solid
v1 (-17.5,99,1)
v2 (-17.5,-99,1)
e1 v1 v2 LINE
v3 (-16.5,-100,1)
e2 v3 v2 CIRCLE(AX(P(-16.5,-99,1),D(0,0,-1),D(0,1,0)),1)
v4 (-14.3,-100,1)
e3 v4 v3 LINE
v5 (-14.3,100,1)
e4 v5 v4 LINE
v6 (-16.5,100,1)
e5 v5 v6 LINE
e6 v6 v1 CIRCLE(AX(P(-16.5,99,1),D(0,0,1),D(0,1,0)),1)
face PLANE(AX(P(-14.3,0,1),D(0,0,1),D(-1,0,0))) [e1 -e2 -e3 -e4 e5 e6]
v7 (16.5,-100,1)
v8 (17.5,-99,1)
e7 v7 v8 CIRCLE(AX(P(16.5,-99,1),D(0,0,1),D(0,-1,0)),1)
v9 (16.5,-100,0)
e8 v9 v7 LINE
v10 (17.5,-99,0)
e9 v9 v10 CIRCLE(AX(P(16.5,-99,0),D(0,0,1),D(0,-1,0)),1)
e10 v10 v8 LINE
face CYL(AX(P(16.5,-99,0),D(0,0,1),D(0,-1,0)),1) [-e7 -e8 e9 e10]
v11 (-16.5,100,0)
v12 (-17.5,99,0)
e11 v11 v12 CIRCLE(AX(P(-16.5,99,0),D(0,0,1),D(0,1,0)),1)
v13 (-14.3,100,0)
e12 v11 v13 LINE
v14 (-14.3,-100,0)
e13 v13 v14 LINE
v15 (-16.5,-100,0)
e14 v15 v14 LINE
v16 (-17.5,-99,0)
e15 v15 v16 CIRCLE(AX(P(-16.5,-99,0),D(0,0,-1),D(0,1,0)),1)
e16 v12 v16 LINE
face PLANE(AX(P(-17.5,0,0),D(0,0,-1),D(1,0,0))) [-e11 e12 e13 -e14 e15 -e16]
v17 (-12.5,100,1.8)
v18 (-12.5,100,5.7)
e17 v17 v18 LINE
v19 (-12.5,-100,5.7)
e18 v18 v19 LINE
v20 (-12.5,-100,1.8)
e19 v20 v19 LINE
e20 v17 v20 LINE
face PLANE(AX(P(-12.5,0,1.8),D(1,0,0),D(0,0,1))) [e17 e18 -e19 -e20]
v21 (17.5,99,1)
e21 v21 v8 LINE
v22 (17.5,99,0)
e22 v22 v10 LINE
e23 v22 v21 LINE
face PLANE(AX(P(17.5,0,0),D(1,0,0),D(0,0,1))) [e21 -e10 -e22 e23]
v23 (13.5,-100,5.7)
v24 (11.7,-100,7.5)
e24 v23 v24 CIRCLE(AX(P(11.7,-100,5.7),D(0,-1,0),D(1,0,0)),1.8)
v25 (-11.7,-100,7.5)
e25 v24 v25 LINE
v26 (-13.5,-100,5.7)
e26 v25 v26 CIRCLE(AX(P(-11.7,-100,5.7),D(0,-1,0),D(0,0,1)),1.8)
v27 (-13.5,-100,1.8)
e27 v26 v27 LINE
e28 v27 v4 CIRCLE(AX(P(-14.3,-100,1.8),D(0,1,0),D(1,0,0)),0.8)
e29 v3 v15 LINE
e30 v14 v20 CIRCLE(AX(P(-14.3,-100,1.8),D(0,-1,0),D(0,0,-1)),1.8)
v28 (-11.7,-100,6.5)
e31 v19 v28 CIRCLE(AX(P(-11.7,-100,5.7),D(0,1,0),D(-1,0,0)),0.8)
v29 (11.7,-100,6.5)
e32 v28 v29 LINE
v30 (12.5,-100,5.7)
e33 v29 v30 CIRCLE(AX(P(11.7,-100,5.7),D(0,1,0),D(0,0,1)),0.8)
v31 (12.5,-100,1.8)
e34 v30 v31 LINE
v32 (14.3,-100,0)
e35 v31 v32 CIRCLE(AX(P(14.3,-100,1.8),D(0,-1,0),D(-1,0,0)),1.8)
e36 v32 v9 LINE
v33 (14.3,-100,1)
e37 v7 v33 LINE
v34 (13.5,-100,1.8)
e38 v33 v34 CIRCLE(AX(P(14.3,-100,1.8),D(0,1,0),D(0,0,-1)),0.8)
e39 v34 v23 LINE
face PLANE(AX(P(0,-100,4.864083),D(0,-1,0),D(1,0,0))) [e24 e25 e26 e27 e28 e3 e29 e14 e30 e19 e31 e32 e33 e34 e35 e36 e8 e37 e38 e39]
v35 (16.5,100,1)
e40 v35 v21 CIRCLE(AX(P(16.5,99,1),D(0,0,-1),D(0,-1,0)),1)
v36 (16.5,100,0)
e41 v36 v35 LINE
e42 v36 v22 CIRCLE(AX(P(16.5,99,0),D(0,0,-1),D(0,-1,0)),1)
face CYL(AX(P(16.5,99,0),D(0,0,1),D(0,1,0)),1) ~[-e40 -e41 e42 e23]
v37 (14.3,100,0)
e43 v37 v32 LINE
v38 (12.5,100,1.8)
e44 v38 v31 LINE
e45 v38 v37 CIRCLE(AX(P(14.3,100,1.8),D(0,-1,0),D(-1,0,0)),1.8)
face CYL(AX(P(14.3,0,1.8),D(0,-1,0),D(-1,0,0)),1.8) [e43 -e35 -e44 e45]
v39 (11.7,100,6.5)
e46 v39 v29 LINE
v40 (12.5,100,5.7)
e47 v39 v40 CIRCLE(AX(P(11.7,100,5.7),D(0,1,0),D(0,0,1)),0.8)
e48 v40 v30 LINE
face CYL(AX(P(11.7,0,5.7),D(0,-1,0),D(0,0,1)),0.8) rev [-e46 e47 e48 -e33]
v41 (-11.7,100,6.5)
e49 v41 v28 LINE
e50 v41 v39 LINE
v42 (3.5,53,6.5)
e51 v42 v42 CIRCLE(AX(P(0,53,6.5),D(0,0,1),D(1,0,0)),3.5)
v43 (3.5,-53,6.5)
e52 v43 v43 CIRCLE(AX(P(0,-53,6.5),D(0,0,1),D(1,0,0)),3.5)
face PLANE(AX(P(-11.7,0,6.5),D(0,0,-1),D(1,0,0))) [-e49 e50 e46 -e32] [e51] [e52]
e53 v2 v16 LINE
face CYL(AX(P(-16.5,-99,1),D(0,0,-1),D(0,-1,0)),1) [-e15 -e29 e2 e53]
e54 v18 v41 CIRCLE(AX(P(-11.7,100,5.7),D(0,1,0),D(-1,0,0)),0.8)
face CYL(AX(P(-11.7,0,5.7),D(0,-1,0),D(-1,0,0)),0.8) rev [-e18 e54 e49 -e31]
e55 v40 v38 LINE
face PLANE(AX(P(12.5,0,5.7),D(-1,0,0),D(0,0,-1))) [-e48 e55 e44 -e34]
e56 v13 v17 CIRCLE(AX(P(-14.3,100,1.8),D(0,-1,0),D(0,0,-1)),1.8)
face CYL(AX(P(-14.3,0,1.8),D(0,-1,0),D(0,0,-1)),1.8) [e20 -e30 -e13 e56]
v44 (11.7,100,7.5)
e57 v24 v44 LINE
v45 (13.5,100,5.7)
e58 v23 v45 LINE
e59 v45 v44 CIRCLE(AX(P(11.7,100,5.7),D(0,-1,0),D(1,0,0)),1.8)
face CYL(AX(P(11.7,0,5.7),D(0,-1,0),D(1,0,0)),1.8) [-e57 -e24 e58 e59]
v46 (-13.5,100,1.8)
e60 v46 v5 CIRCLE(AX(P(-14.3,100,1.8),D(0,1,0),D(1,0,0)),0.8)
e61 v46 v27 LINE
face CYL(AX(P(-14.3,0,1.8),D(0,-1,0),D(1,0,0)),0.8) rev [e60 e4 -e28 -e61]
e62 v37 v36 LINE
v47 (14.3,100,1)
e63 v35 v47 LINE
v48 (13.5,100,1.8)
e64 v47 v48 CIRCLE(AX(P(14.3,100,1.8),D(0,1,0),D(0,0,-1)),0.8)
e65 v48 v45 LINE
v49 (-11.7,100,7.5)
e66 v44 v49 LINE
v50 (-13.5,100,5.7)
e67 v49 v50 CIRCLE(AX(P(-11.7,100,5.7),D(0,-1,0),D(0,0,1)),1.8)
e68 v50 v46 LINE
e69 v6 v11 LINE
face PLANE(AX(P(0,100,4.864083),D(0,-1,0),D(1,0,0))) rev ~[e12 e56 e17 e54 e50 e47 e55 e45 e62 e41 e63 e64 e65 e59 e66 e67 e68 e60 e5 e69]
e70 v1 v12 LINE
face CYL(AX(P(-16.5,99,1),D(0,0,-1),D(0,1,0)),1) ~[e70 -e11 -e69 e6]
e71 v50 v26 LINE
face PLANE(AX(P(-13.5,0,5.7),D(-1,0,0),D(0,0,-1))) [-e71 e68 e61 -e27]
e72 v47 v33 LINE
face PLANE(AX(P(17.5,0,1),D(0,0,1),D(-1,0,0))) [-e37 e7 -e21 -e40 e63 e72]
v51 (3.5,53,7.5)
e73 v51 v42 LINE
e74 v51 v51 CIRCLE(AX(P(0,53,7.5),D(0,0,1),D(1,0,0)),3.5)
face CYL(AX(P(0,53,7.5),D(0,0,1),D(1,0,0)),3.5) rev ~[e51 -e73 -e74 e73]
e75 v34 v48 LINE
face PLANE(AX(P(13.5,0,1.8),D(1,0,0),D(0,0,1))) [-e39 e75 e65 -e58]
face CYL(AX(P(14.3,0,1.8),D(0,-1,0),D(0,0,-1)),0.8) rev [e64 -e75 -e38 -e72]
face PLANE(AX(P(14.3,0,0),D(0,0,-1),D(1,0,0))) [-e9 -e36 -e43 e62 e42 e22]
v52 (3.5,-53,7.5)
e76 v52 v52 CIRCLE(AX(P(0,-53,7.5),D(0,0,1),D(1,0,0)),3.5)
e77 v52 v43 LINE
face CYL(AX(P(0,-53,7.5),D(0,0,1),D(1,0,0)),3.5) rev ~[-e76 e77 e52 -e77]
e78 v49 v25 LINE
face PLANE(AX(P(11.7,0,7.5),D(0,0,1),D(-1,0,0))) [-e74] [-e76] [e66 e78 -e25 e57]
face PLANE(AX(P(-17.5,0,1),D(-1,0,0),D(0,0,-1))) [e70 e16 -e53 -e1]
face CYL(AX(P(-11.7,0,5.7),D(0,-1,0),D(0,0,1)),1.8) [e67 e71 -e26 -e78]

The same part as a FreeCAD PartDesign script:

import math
import FreeCAD as App
import Part
import Sketcher


def edges_at(feature, points):
    """Names of the edges that pass closest to the given points."""
    edges = feature.Shape.Edges
    near = lambda p: min(range(len(edges)), key=lambda i: edges[i].distToShape(Part.Vertex(*p))[0])
    return sorted({f"Edge{near(p) + 1}" for p in points})

doc = App.newDocument("Part")
body = doc.addObject("PartDesign::Body", "Body")

# Sketch on XZ plane
sketch1 = doc.addObject("Sketcher::SketchObject", "Sketch")
body.addObject(sketch1)
sketch1.AttachmentSupport = (doc.XZ_Plane, [""])
sketch1.MapMode = "FlatFace"
sketch1.addGeometry([
    Part.LineSegment(App.Vector(11.7, 7.5, 0), App.Vector(-11.7, 7.5, 0)),  # 0
    Part.ArcOfCircle(Part.Circle(App.Vector(-11.7, 5.7, 0), App.Vector(0, 0, 1), 1.8), math.radians(90), math.radians(180)),  # 1
    Part.LineSegment(App.Vector(-13.5, 5.7, 0), App.Vector(-13.5, 1.8, 0)),  # 2
    Part.ArcOfCircle(Part.Circle(App.Vector(-14.3, 1.8, 0), App.Vector(0, 0, 1), 0.8), math.radians(-90), math.radians(0)),  # 3
    Part.LineSegment(App.Vector(-14.3, 1, 0), App.Vector(-17.5, 1, 0)),  # 4
    Part.LineSegment(App.Vector(-17.5, 1, 0), App.Vector(-17.5, 0, 0)),  # 5
    Part.LineSegment(App.Vector(-17.5, 0, 0), App.Vector(-14.3, 0, 0)),  # 6
    Part.ArcOfCircle(Part.Circle(App.Vector(-14.3, 1.8, 0), App.Vector(0, 0, 1), 1.8), math.radians(-90), math.radians(0)),  # 7
    Part.LineSegment(App.Vector(-12.5, 1.8, 0), App.Vector(-12.5, 5.7, 0)),  # 8
    Part.ArcOfCircle(Part.Circle(App.Vector(-11.7, 5.7, 0), App.Vector(0, 0, 1), 0.8), math.radians(90), math.radians(180)),  # 9
    Part.LineSegment(App.Vector(-11.7, 6.5, 0), App.Vector(11.7, 6.5, 0)),  # 10
    Part.ArcOfCircle(Part.Circle(App.Vector(11.7, 5.7, 0), App.Vector(0, 0, 1), 0.8), math.radians(0), math.radians(90)),  # 11
    Part.LineSegment(App.Vector(12.5, 5.7, 0), App.Vector(12.5, 1.8, 0)),  # 12
    Part.ArcOfCircle(Part.Circle(App.Vector(14.3, 1.8, 0), App.Vector(0, 0, 1), 1.8), math.radians(180), math.radians(270)),  # 13
    Part.LineSegment(App.Vector(14.3, 0, 0), App.Vector(17.5, 0, 0)),  # 14
    Part.LineSegment(App.Vector(17.5, 0, 0), App.Vector(17.5, 1, 0)),  # 15
    Part.LineSegment(App.Vector(17.5, 1, 0), App.Vector(14.3, 1, 0)),  # 16
    Part.ArcOfCircle(Part.Circle(App.Vector(14.3, 1.8, 0), App.Vector(0, 0, 1), 0.8), math.radians(180), math.radians(270)),  # 17
    Part.LineSegment(App.Vector(13.5, 1.8, 0), App.Vector(13.5, 5.7, 0)),  # 18
    Part.ArcOfCircle(Part.Circle(App.Vector(11.7, 5.7, 0), App.Vector(0, 0, 1), 1.8), math.radians(0), math.radians(90)),  # 19
], False)
sketch1.addConstraint([
    Sketcher.Constraint("Tangent", 0, 2, 1, 1),
    Sketcher.Constraint("Tangent", 1, 2, 2, 1),
    Sketcher.Constraint("Tangent", 2, 2, 3, 2),
    Sketcher.Constraint("Tangent", 3, 1, 4, 1),
    Sketcher.Constraint("Coincident", 4, 2, 5, 1),
    Sketcher.Constraint("Coincident", 5, 2, 6, 1),
    Sketcher.Constraint("Tangent", 6, 2, 7, 1),
    Sketcher.Constraint("Tangent", 7, 2, 8, 1),
    Sketcher.Constraint("Tangent", 8, 2, 9, 2),
    Sketcher.Constraint("Tangent", 9, 1, 10, 1),
    Sketcher.Constraint("Tangent", 10, 2, 11, 2),
    Sketcher.Constraint("Tangent", 11, 1, 12, 1),
    Sketcher.Constraint("Tangent", 12, 2, 13, 1),
    Sketcher.Constraint("Tangent", 13, 2, 14, 1),
    Sketcher.Constraint("Coincident", 14, 2, 15, 1),
    Sketcher.Constraint("Coincident", 15, 2, 16, 1),
    Sketcher.Constraint("Tangent", 16, 2, 17, 2),
    Sketcher.Constraint("Tangent", 17, 1, 18, 1),
    Sketcher.Constraint("Tangent", 18, 2, 19, 1),
    Sketcher.Constraint("Tangent", 19, 2, 0, 1),
    Sketcher.Constraint("Horizontal", 0),
    Sketcher.Constraint("Vertical", 2),
    Sketcher.Constraint("Horizontal", 4),
    Sketcher.Constraint("Vertical", 5),
    Sketcher.Constraint("Horizontal", 6),
    Sketcher.Constraint("Vertical", 8),
    Sketcher.Constraint("Horizontal", 10),
    Sketcher.Constraint("Vertical", 12),
    Sketcher.Constraint("Horizontal", 14),
    Sketcher.Constraint("Vertical", 15),
    Sketcher.Constraint("Horizontal", 16),
    Sketcher.Constraint("Vertical", 18),
    Sketcher.Constraint("Coincident", 7, 3, 3, 3),
    Sketcher.Constraint("Coincident", 9, 3, 1, 3),
    Sketcher.Constraint("Coincident", 17, 3, 13, 3),
    Sketcher.Constraint("Coincident", 19, 3, 11, 3),
    Sketcher.Constraint("Equal", 1, 7),
    Sketcher.Constraint("Equal", 9, 11),
    Sketcher.Constraint("Equal", 7, 13),
    Sketcher.Constraint("Symmetric", 6, 2, 13, 2, -1, 1),
    Sketcher.Constraint("Symmetric", 5, 2, 14, 2, -2),
    Sketcher.Constraint("Radius", 1, 1.8),
    Sketcher.Constraint("Radius", 3, 0.8),
    Sketcher.Constraint("DistanceX", 0, 2, 0, 1, 23.4),
    Sketcher.Constraint("DistanceX", 4, 2, 4, 1, 3.2),
    Sketcher.Constraint("DistanceY", 2, 2, 2, 1, 3.9),
])
pad1 = doc.addObject("PartDesign::Pad", "Pad")
body.addObject(pad1)
pad1.Profile = sketch1
pad1.Length = 200
pad1.Midplane = True

# Sketch on XY plane
sketch2 = doc.addObject("Sketcher::SketchObject", "Sketch001")
body.addObject(sketch2)
sketch2.AttachmentSupport = (doc.XY_Plane, [""])
sketch2.MapMode = "FlatFace"
sketch2.AttachmentOffset = App.Placement(App.Vector(0, 0, 7.5), App.Rotation())
sketch2.addGeometry([
    Part.Circle(App.Vector(0, 53, 0), App.Vector(0, 0, 1), 3.5),
    Part.Circle(App.Vector(0, -53, 0), App.Vector(0, 0, 1), 3.5),
], False)
sketch2.addConstraint([
    Sketcher.Constraint("Equal", 0, 1),
    Sketcher.Constraint("Symmetric", 0, 3, 1, 3, -1, 1),
    Sketcher.Constraint("PointOnObject", 0, 3, -2),
    Sketcher.Constraint("Diameter", 0, 7.0),
    Sketcher.Constraint("DistanceY", -1, 1, 0, 3, 53.0),
])
pocket1 = doc.addObject("PartDesign::Pocket", "Pocket")
body.addObject(pocket1)
pocket1.Profile = sketch2
pocket1.Length = 25
doc.recompute()

fillet = doc.addObject("PartDesign::Fillet", "Fillet")
body.addObject(fillet)
fillet.Base = (pocket1, edges_at(pocket1, [
    (17.5, 100, 0.5),
    (-17.5, 100, 0.5),
    (17.5, -100, 0.5),
    (-17.5, -100, 0.5),
]))
fillet.Radius = 1

doc.recompute()
